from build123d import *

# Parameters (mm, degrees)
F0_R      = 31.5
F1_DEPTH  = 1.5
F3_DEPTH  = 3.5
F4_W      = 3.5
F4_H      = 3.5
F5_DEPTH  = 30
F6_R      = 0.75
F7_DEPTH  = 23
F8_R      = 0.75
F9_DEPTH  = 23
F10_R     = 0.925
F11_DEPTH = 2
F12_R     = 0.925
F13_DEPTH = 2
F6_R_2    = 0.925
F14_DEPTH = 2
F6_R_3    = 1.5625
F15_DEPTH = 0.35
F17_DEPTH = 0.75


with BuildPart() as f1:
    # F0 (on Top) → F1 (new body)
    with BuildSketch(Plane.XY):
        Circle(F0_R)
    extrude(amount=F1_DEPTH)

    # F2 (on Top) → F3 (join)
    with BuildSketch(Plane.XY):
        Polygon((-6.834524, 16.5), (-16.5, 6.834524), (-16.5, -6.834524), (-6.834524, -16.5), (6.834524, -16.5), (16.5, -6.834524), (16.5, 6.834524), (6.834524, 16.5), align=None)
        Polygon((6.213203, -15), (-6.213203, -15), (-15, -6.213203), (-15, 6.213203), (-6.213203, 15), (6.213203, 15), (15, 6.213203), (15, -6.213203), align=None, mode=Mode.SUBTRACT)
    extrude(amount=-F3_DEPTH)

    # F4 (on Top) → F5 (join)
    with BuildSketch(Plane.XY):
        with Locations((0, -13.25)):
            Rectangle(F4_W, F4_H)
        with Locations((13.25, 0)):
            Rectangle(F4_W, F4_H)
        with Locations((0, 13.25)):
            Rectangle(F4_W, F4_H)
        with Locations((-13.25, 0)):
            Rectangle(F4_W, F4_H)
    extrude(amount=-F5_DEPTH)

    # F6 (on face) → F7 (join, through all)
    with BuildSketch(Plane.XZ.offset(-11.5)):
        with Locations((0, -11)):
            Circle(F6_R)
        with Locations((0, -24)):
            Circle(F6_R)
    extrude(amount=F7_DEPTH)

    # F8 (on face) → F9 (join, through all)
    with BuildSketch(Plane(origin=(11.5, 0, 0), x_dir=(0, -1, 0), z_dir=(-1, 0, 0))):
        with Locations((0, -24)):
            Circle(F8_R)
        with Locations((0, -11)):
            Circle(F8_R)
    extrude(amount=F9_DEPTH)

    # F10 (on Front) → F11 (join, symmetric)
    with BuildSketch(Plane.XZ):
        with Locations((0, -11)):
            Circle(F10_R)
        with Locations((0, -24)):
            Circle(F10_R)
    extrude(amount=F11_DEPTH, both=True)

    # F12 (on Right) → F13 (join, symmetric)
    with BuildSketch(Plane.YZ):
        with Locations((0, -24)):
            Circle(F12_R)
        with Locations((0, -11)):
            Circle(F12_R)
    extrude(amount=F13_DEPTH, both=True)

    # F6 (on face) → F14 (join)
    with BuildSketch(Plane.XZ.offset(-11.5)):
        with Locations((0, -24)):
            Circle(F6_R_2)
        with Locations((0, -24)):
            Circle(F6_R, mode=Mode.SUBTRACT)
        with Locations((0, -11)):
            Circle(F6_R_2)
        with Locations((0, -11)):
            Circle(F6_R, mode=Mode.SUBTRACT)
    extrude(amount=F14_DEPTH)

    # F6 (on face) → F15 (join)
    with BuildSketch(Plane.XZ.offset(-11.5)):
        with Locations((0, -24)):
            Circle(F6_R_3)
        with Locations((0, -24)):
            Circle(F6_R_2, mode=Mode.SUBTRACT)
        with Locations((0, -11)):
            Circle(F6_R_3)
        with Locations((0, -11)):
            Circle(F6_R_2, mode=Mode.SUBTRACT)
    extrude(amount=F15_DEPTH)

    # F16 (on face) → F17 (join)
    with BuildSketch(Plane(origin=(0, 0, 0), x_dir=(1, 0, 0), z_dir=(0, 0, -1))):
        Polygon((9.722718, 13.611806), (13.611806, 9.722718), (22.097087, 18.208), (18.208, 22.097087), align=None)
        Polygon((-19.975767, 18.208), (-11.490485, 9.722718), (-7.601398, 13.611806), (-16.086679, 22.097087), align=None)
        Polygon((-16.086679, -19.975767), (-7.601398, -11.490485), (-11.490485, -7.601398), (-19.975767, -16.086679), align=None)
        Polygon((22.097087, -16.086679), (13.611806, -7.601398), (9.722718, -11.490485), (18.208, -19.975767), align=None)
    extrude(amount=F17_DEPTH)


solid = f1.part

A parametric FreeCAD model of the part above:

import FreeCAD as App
import Part
import Sketcher
from FreeCAD import Vector


def add_polygon(sketch, points):
    """Adds a closed chain of lines whose ends are joined by coincident constraints."""
    first, n = sketch.GeometryCount, len(points)
    for a, b in zip(points, points[1:] + points[:1]):
        sketch.addGeometry(Part.LineSegment(App.Vector(*a, 0), App.Vector(*b, 0)), False)
    for i in range(n):
        sketch.addConstraint(Sketcher.Constraint("Coincident", first + i, 2, first + (i + 1) % n, 1))

doc = App.newDocument("Part")
body = doc.addObject("PartDesign::Body", "Body")

# Sketch on XY plane
sketch1 = body.newObject("Sketcher::SketchObject", "Sketch")
sketch1.AttachmentSupport = (doc.getObject("XY_Plane"), [""])
sketch1.MapMode = "FlatFace"
sketch1.addGeometry(Part.Circle(Vector(0, 0, 0), Vector(0, 0, 1), 32), False)
sketch1.addConstraint(Sketcher.Constraint("Coincident", 0, 3, -1, 1))
sketch1.addConstraint(Sketcher.Constraint("Diameter", 0, 63.0))
pad1 = body.newObject("PartDesign::Pad", "Pad")
pad1.Profile = sketch1
pad1.Length = 1.5

# Sketch on XY plane
sketch2 = body.newObject("Sketcher::SketchObject", "Sketch001")
sketch2.AttachmentSupport = (doc.getObject("XY_Plane"), [""])
sketch2.MapMode = "FlatFace"
add_polygon(sketch2, [(-7, 16), (-16, 7), (-16, -7), (-7, -16), (7, -16), (16, -7), (16, 7), (7, 16)])  # lines 0-7
add_polygon(sketch2, [(15, -6), (6, -15), (-6, -15), (-15, -6), (-15, 6), (-6, 15), (6, 15), (15, 6)])  # lines 8-15
sketch2.addConstraint(Sketcher.Constraint("Vertical", 1))
sketch2.addConstraint(Sketcher.Constraint("Horizontal", 3))
sketch2.addConstraint(Sketcher.Constraint("Vertical", 5))
sketch2.addConstraint(Sketcher.Constraint("Horizontal", 7))
sketch2.addConstraint(Sketcher.Constraint("Horizontal", 9))
sketch2.addConstraint(Sketcher.Constraint("Vertical", 11))
sketch2.addConstraint(Sketcher.Constraint("Horizontal", 13))
sketch2.addConstraint(Sketcher.Constraint("Vertical", 15))
sketch2.addConstraint(Sketcher.Constraint("Symmetric", 0, 2, 4, 2, -1, 1))
sketch2.addConstraint(Sketcher.Constraint("Symmetric", 2, 2, 6, 2, -1, 1))
sketch2.addConstraint(Sketcher.Constraint("Symmetric", 8, 2, 12, 2, -1, 1))
sketch2.addConstraint(Sketcher.Constraint("Symmetric", 10, 2, 14, 2, -1, 1))
sketch2.addConstraint(Sketcher.Constraint("Perpendicular", 0, 2))
sketch2.addConstraint(Sketcher.Constraint("Perpendicular", 2, 4))
sketch2.addConstraint(Sketcher.Constraint("Perpendicular", 4, 6))
sketch2.addConstraint(Sketcher.Constraint("Perpendicular", 6, 8))
sketch2.addConstraint(Sketcher.Constraint("Perpendicular", 8, 10))
sketch2.addConstraint(Sketcher.Constraint("Perpendicular", 10, 12))
sketch2.addConstraint(Sketcher.Constraint("Perpendicular", 12, 14))
sketch2.addConstraint(Sketcher.Constraint("Horizontal", 1, 2, 4, 2))
sketch2.addConstraint(Sketcher.Constraint("Horizontal", 11, 2, 14, 2))
sketch2.addConstraint(Sketcher.Constraint("Vertical", 3, 2, 6, 2))
sketch2.addConstraint(Sketcher.Constraint("Equal", 7, 1))
sketch2.addConstraint(Sketcher.Constraint("Equal", 13, 11))
sketch2.addConstraint(Sketcher.Constraint("DistanceY", 8, 2, -1, 1, 15.0))
sketch2.addConstraint(Sketcher.Constraint("DistanceX", 1, 2, 4, 2, 33.0))
sketch2.addConstraint(Sketcher.Constraint("DistanceX", 3, 1, 3, 2, 13.669048))
sketch2.addConstraint(Sketcher.Constraint("DistanceX", 9, 2, 9, 1, 12.426406))
pad2 = body.newObject("PartDesign::Pad", "Pad001")
pad2.Profile = sketch2
pad2.Length = 3.5
pad2.Reversed = True

# Sketch on XY plane
sketch3 = body.newObject("Sketcher::SketchObject", "Sketch002")
sketch3.AttachmentSupport = (doc.getObject("XY_Plane"), [""])
sketch3.MapMode = "FlatFace"
add_polygon(sketch3, [(-1.8, -11.5), (-1.8, -15), (1.8, -15), (1.8, -11.5)])  # lines 0-3
add_polygon(sketch3, [(11.5, 1.8), (11.5, -1.8), (15, -1.8), (15, 1.8)])  # lines 4-7
add_polygon(sketch3, [(-1.8, 15), (-1.8, 11.5), (1.8, 11.5), (1.8, 15)])  # lines 8-11
add_polygon(sketch3, [(-15, 1.8), (-15, -1.8), (-11.5, -1.8), (-11.5, 1.8)])  # lines 12-15
sketch3.addConstraint(Sketcher.Constraint("Vertical", 0))
sketch3.addConstraint(Sketcher.Constraint("Horizontal", 1))
sketch3.addConstraint(Sketcher.Constraint("Vertical", 2))
sketch3.addConstraint(Sketcher.Constraint("Horizontal", 3))
sketch3.addConstraint(Sketcher.Constraint("Vertical", 4))
sketch3.addConstraint(Sketcher.Constraint("Horizontal", 5))
sketch3.addConstraint(Sketcher.Constraint("Vertical", 6))
sketch3.addConstraint(Sketcher.Constraint("Horizontal", 7))
sketch3.addConstraint(Sketcher.Constraint("Vertical", 8))
sketch3.addConstraint(Sketcher.Constraint("Horizontal", 9))
sketch3.addConstraint(Sketcher.Constraint("Vertical", 10))
sketch3.addConstraint(Sketcher.Constraint("Horizontal", 11))
sketch3.addConstraint(Sketcher.Constraint("Vertical", 12))
sketch3.addConstraint(Sketcher.Constraint("Horizontal", 13))
sketch3.addConstraint(Sketcher.Constraint("Vertical", 14))
sketch3.addConstraint(Sketcher.Constraint("Horizontal", 15))
sketch3.addConstraint(Sketcher.Constraint("Symmetric", 2, 2, 8, 2, -1, 1))
sketch3.addConstraint(Sketcher.Constraint("Symmetric", 0, 2, 10, 2, -1, 1))
sketch3.addConstraint(Sketcher.Constraint("Symmetric", 6, 2, 12, 2, -1, 1))
sketch3.addConstraint(Sketcher.Constraint("Symmetric", 4, 2, 14, 2, -1, 1))
sketch3.addConstraint(Sketcher.Constraint("Horizontal", 5, 2, 12, 2))
sketch3.addConstraint(Sketcher.Constraint("Vertical", 3, 2, 8, 2))
sketch3.addConstraint(Sketcher.Constraint("Equal", 3, 5))
sketch3.addConstraint(Sketcher.Constraint("Equal", 15, 0))
sketch3.addConstraint(Sketcher.Constraint("Equal", 2, 4))
sketch3.addConstraint(Sketcher.Constraint("DistanceX", 1, 1, 1, 2, 3.5))
sketch3.addConstraint(Sketcher.Constraint("DistanceY", 0, 2, -1, 1, 15.0))
sketch3.addConstraint(Sketcher.Constraint("DistanceX", -1, 1, 5, 2, 15.0))
pad3 = body.newObject("PartDesign::Pad", "Pad002")
pad3.Profile = sketch3
pad3.Length = 30
pad3.Reversed = True

# Sketch on XZ plane
sketch4 = body.newObject("Sketcher::SketchObject", "Sketch003")
sketch4.AttachmentSupport = (doc.getObject("XZ_Plane"), [""])
sketch4.MapMode = "FlatFace"
sketch4.AttachmentOffset = App.Placement(Vector(0, 0, -11.5), App.Rotation())
sketch4.addGeometry(Part.Circle(Vector(0, -11, 0), Vector(0, 0, 1), 0.8), False)
sketch4.addGeometry(Part.Circle(Vector(0, -24, 0), Vector(0, 0, 1), 0.8), False)
sketch4.addConstraint(Sketcher.Constraint("Equal", 0, 1))
sketch4.addConstraint(Sketcher.Constraint("PointOnObject", 0, 3, -2))
sketch4.addConstraint(Sketcher.Constraint("PointOnObject", 1, 3, -2))
sketch4.addConstraint(Sketcher.Constraint("Diameter", 0, 1.5))
sketch4.addConstraint(Sketcher.Constraint("DistanceY", 0, 3, -1, 1, 11.0))
sketch4.addConstraint(Sketcher.Constraint("DistanceY", 1, 3, -1, 1, 24.0))
pad4 = body.newObject("PartDesign::Pad", "Pad003")
pad4.Profile = sketch4
pad4.Type = "UpToLast"

# Sketch on YZ plane
sketch5 = body.newObject("Sketcher::SketchObject", "Sketch004")
sketch5.AttachmentSupport = (doc.getObject("YZ_Plane"), [""])
sketch5.MapMode = "FlatFace"
sketch5.AttachmentOffset = App.Placement(Vector(0, 0, 11.5), App.Rotation())
sketch5.addGeometry(Part.Circle(Vector(0, -24, 0), Vector(0, 0, 1), 0.8), False)
sketch5.addGeometry(Part.Circle(Vector(0, -11, 0), Vector(0, 0, 1), 0.8), False)
sketch5.addConstraint(Sketcher.Constraint("Equal", 0, 1))
sketch5.addConstraint(Sketcher.Constraint("PointOnObject", 0, 3, -2))
sketch5.addConstraint(Sketcher.Constraint("PointOnObject", 1, 3, -2))
sketch5.addConstraint(Sketcher.Constraint("Diameter", 0, 1.5))
sketch5.addConstraint(Sketcher.Constraint("DistanceY", 0, 3, -1, 1, 24.0))
sketch5.addConstraint(Sketcher.Constraint("DistanceY", 1, 3, -1, 1, 11.0))
pad5 = body.newObject("PartDesign::Pad", "Pad004")
pad5.Profile = sketch5
pad5.Type = "UpToLast"
pad5.Reversed = True

# Sketch on XZ plane
sketch6 = body.newObject("Sketcher::SketchObject", "Sketch005")
sketch6.AttachmentSupport = (doc.getObject("XZ_Plane"), [""])
sketch6.MapMode = "FlatFace"
sketch6.addGeometry(Part.Circle(Vector(0, -11, 0), Vector(0, 0, 1), 0.9), False)
sketch6.addGeometry(Part.Circle(Vector(0, -24, 0), Vector(0, 0, 1), 0.9), False)
sketch6.addConstraint(Sketcher.Constraint("Equal", 0, 1))
sketch6.addConstraint(Sketcher.Constraint("PointOnObject", 0, 3, -2))
sketch6.addConstraint(Sketcher.Constraint("PointOnObject", 1, 3, -2))
sketch6.addConstraint(Sketcher.Constraint("Diameter", 0, 1.85))
sketch6.addConstraint(Sketcher.Constraint("DistanceY", 0, 3, -1, 1, 11.0))
sketch6.addConstraint(Sketcher.Constraint("DistanceY", 1, 3, -1, 1, 24.0))
pad6 = body.newObject("PartDesign::Pad", "Pad005")
pad6.Profile = sketch6
pad6.Length = 4
pad6.Midplane = True

# Sketch on YZ plane
sketch7 = body.newObject("Sketcher::SketchObject", "Sketch006")
sketch7.AttachmentSupport = (doc.getObject("YZ_Plane"), [""])
sketch7.MapMode = "FlatFace"
sketch7.addGeometry(Part.Circle(Vector(0, -24, 0), Vector(0, 0, 1), 0.9), False)
sketch7.addGeometry(Part.Circle(Vector(0, -11, 0), Vector(0, 0, 1), 0.9), False)
sketch7.addConstraint(Sketcher.Constraint("Equal", 0, 1))
sketch7.addConstraint(Sketcher.Constraint("PointOnObject", 0, 3, -2))
sketch7.addConstraint(Sketcher.Constraint("PointOnObject", 1, 3, -2))
sketch7.addConstraint(Sketcher.Constraint("Diameter", 0, 1.85))
sketch7.addConstraint(Sketcher.Constraint("DistanceY", 0, 3, -1, 1, 24.0))
sketch7.addConstraint(Sketcher.Constraint("DistanceY", 1, 3, -1, 1, 11.0))
pad7 = body.newObject("PartDesign::Pad", "Pad006")
pad7.Profile = sketch7
pad7.Length = 4
pad7.Midplane = True

# Sketch on XZ plane
sketch8 = body.newObject("Sketcher::SketchObject", "Sketch007")
sketch8.AttachmentSupport = (doc.getObject("XZ_Plane"), [""])
sketch8.MapMode = "FlatFace"
sketch8.AttachmentOffset = App.Placement(Vector(0, 0, -11.5), App.Rotation())
sketch8.addGeometry(Part.Circle(Vector(0, -24, 0), Vector(0, 0, 1), 0.9), False)
sketch8.addGeometry(Part.Circle(Vector(0, -24, 0), Vector(0, 0, 1), 0.8), False)
sketch8.addGeometry(Part.Circle(Vector(0, -11, 0), Vector(0, 0, 1), 0.9), False)
sketch8.addGeometry(Part.Circle(Vector(0, -11, 0), Vector(0, 0, 1), 0.8), False)
sketch8.addConstraint(Sketcher.Constraint("Coincident", 1, 3, 0, 3))
sketch8.addConstraint(Sketcher.Constraint("Coincident", 3, 3, 2, 3))
sketch8.addConstraint(Sketcher.Constraint("Equal", 0, 2))
sketch8.addConstraint(Sketcher.Constraint("Equal", 1, 3))
sketch8.addConstraint(Sketcher.Constraint("PointOnObject", 0, 3, -2))
sketch8.addConstraint(Sketcher.Constraint("PointOnObject", 2, 3, -2))
sketch8.addConstraint(Sketcher.Constraint("Diameter", 1, 1.5))
sketch8.addConstraint(Sketcher.Constraint("Diameter", 0, 1.85))
sketch8.addConstraint(Sketcher.Constraint("DistanceY", 0, 3, -1, 1, 24.0))
sketch8.addConstraint(Sketcher.Constraint("DistanceY", 2, 3, -1, 1, 11.0))
pad8 = body.newObject("PartDesign::Pad", "Pad007")
pad8.Profile = sketch8
pad8.Length = 2

# Sketch on XZ plane
sketch9 = body.newObject("Sketcher::SketchObject", "Sketch008")
sketch9.AttachmentSupport = (doc.getObject("XZ_Plane"), [""])
sketch9.MapMode = "FlatFace"
sketch9.AttachmentOffset = App.Placement(Vector(0, 0, -11.5), App.Rotation())
sketch9.addGeometry(Part.Circle(Vector(0, -24, 0), Vector(0, 0, 1), 1.6), False)
sketch9.addGeometry(Part.Circle(Vector(0, -24, 0), Vector(0, 0, 1), 0.9), False)
sketch9.addGeometry(Part.Circle(Vector(0, -11, 0), Vector(0, 0, 1), 1.6), False)
sketch9.addGeometry(Part.Circle(Vector(0, -11, 0), Vector(0, 0, 1), 0.9), False)
sketch9.addConstraint(Sketcher.Constraint("Coincident", 1, 3, 0, 3))
sketch9.addConstraint(Sketcher.Constraint("Coincident", 3, 3, 2, 3))
sketch9.addConstraint(Sketcher.Constraint("Equal", 0, 2))
sketch9.addConstraint(Sketcher.Constraint("Equal", 1, 3))
sketch9.addConstraint(Sketcher.Constraint("PointOnObject", 0, 3, -2))
sketch9.addConstraint(Sketcher.Constraint("PointOnObject", 2, 3, -2))
sketch9.addConstraint(Sketcher.Constraint("Diameter", 1, 1.85))
sketch9.addConstraint(Sketcher.Constraint("Diameter", 0, 3.125))
sketch9.addConstraint(Sketcher.Constraint("DistanceY", 0, 3, -1, 1, 24.0))
sketch9.addConstraint(Sketcher.Constraint("DistanceY", 2, 3, -1, 1, 11.0))
pad9 = body.newObject("PartDesign::Pad", "Pad008")
pad9.Profile = sketch9
pad9.Length = 0.35

# Sketch on XY plane
sketch10 = body.newObject("Sketcher::SketchObject", "Sketch009")
sketch10.AttachmentSupport = (doc.getObject("XY_Plane"), [""])
sketch10.MapMode = "FlatFace"
add_polygon(sketch10, [(10, -14), (14, -10), (22, -18), (18, -22)])  # lines 0-3
add_polygon(sketch10, [(-20, -18), (-11, -10), (-8, -14), (-16, -22)])  # lines 4-7
add_polygon(sketch10, [(-16, 20), (-8, 11), (-11, 8), (-20, 16)])  # lines 8-11
add_polygon(sketch10, [(22, 16), (14, 8), (10, 11), (18, 20)])  # lines 12-15
sketch10.addConstraint(Sketcher.Constraint("Perpendicular", 0, 1))
sketch10.addConstraint(Sketcher.Constraint("Perpendicular", 1, 2))
sketch10.addConstraint(Sketcher.Constraint("Perpendicular", 2, 3))
sketch10.addConstraint(Sketcher.Constraint("Perpendicular", 3, 4))
sketch10.addConstraint(Sketcher.Constraint("Perpendicular", 4, 5))
sketch10.addConstraint(Sketcher.Constraint("Perpendicular", 5, 6))
sketch10.addConstraint(Sketcher.Constraint("Perpendicular", 6, 7))
sketch10.addConstraint(Sketcher.Constraint("Parallel", 7, 8))
sketch10.addConstraint(Sketcher.Constraint("Perpendicular", 8, 9))
sketch10.addConstraint(Sketcher.Constraint("Perpendicular", 9, 10))
sketch10.addConstraint(Sketcher.Constraint("Perpendicular", 10, 11))
sketch10.addConstraint(Sketcher.Constraint("Parallel", 11, 12))
sketch10.addConstraint(Sketcher.Constraint("Perpendicular", 12, 13))
sketch10.addConstraint(Sketcher.Constraint("Perpendicular", 13, 14))
sketch10.addConstraint(Sketcher.Constraint("Perpendicular", 14, 15))
sketch10.addConstraint(Sketcher.Constraint("Horizontal", 0, 2, 4, 2))
sketch10.addConstraint(Sketcher.Constraint("Horizontal", 3, 2, 5, 2))
sketch10.addConstraint(Sketcher.Constraint("Horizontal", 2, 2, 6, 2))
sketch10.addConstraint(Sketcher.Constraint("Horizontal", 9, 2, 12, 2))
sketch10.addConstraint(Sketcher.Constraint("Horizontal", 8, 2, 13, 2))
sketch10.addConstraint(Sketcher.Constraint("Horizontal", 11, 2, 14, 2))
sketch10.addConstraint(Sketcher.Constraint("Vertical", 5, 2, 8, 2))
sketch10.addConstraint(Sketcher.Constraint("Vertical", 4, 2, 9, 2))
sketch10.addConstraint(Sketcher.Constraint("Vertical", 7, 2, 10, 2))
sketch10.addConstraint(Sketcher.Constraint("Vertical", 0, 2, 12, 2))
sketch10.addConstraint(Sketcher.Constraint("Vertical", 3, 2, 13, 2))
sketch10.addConstraint(Sketcher.Constraint("Distance", 1, 12.0))
sketch10.addConstraint(Sketcher.Constraint("Distance", 0, 5.500001))
sketch10.addConstraint(Sketcher.Constraint("DistanceY", 1, 2, -1, 1, 18.208))
sketch10.addConstraint(Sketcher.Constraint("DistanceX", -1, 1, 2, 2, 18.208))
sketch10.addConstraint(Sketcher.Constraint("DistanceX", 6, 2, -1, 1, 16.086679))
sketch10.addConstraint(Sketcher.Constraint("DistanceY", -1, 1, 10, 2, 16.086679))
pad10 = body.newObject("PartDesign::Pad", "Pad009")
pad10.Profile = sketch10
pad10.Length = 0.75
pad10.Reversed = True

doc.recompute()
